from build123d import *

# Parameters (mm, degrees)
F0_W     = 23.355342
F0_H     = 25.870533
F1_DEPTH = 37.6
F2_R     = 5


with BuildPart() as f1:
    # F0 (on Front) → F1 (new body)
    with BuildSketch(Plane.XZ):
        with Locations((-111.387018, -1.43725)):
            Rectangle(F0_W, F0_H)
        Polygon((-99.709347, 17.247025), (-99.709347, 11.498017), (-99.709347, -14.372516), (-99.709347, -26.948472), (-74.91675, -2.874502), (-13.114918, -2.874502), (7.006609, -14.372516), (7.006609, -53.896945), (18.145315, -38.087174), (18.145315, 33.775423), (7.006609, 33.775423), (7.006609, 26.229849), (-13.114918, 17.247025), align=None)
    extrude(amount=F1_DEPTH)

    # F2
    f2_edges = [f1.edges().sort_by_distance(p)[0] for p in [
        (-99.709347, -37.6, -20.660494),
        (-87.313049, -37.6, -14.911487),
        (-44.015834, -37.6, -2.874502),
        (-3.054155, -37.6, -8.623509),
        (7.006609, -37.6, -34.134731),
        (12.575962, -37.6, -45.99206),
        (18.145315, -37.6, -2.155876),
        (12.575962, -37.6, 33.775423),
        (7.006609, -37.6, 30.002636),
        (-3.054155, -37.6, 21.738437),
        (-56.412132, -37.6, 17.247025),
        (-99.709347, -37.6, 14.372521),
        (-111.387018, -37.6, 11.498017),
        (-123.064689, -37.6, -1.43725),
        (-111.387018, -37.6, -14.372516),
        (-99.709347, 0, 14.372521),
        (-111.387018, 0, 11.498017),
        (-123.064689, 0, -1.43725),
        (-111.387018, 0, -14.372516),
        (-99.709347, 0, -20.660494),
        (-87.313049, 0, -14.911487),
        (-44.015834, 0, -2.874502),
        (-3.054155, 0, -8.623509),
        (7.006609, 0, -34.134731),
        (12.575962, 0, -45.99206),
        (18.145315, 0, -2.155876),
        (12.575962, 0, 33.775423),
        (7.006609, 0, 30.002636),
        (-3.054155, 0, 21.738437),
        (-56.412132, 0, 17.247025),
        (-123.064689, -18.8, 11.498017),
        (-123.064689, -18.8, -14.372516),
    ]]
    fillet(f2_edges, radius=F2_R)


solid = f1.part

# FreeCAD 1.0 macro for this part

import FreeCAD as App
import Part
import Sketcher
from FreeCAD import Vector
Q = App.Units.Quantity


def edges_at(feature, points):
    """Names of the edges that pass closest to the given points."""
    edges = feature.Shape.Edges
    near = lambda p: min(range(len(edges)), key=lambda i: edges[i].distToShape(Part.Vertex(*p))[0])
    return sorted({f"Edge{near(p) + 1}" for p in points})


def add_polygon(sketch, points):
    """Adds a closed chain of lines whose ends are joined by coincident constraints."""
    first, n = sketch.GeometryCount, len(points)
    for a, b in zip(points, points[1:] + points[:1]):
        sketch.addGeometry(Part.LineSegment(App.Vector(*a, 0), App.Vector(*b, 0)), False)
    for i in range(n):
        sketch.addConstraint(Sketcher.Constraint("Coincident", first + i, 2, first + (i + 1) % n, 1))

doc = App.newDocument("Part")
params = doc.addObject("Spreadsheet::Sheet", "Params")
for row, (alias, value) in enumerate([
    ("pad1_length", "37.6 mm"),
    ("fillet_radius", "5 mm"),
], start=1):
    params.set(f"A{row}", alias)
    params.set(f"B{row}", "=" + value)
    params.setAlias(f"B{row}", alias)

body = doc.addObject("PartDesign::Body", "Body")

sketch1 = body.newObject("Sketcher::SketchObject", "Sketch")
sketch1.AttachmentSupport = (doc.getObject("XZ_Plane"), [""])
sketch1.MapMode = "FlatFace"
add_polygon(sketch1, [(-123, 11), (-123, -14), (-100, -14), (-100, -27), (-75, -3), (-13, -3), (7, -14), (7, -54), (18, -38), (18, 34), (7, 34), (7, 26), (-13, 17), (-100, 17), (-100, 11)])
sketch1.addConstraint([
    Sketcher.Constraint("Vertical", 0),
    Sketcher.Constraint("Horizontal", 1),
    Sketcher.Constraint("Vertical", 2),
    Sketcher.Constraint("Horizontal", 4),
    Sketcher.Constraint("Vertical", 6),
    Sketcher.Constraint("Vertical", 8),
    Sketcher.Constraint("Horizontal", 9),
    Sketcher.Constraint("Vertical", 10),
    Sketcher.Constraint("Horizontal", 12),
    Sketcher.Constraint("Vertical", 13),
    Sketcher.Constraint("Horizontal", 14),
    Sketcher.Constraint("Horizontal", 1, 2, 5, 2),
    Sketcher.Constraint("Vertical", 6, 2, 9, 2),
    Sketcher.Constraint("Vertical", 4, 2, 11, 2),
    Sketcher.Constraint("Vertical", 2, 2, 12, 2),
    Sketcher.Constraint("DistanceX", 4, 1, 4, 2, Q("61.801832 mm")),
    Sketcher.Constraint("DistanceX", 12, 2, 12, 1, Q("86.594429 mm")),
    Sketcher.Constraint("DistanceY", 6, 2, 6, 1, Q("39.524429 mm")),
    Sketcher.Constraint("DistanceY", 13, 2, 13, 1, Q("5.749009 mm")),
    Sketcher.Constraint("DistanceX", 0, 2, 5, 2, Q("130.071298 mm")),
    Sketcher.Constraint("DistanceY", 7, 2, 2, 2, Q("11.138702 mm")),
    Sketcher.Constraint("DistanceY", 11, 2, 9, 2, Q("16.528398 mm")),
    Sketcher.Constraint("Distance", 5, Q("23.17499 mm")),
    Sketcher.Constraint("DistanceX", 1, 1, 1, 2, Q("23.355342 mm")),
    Sketcher.Constraint("DistanceX", 9, 2, 9, 1, Q("11.138706 mm")),
    Sketcher.Constraint("DistanceY", 0, 2, 0, 1, Q("25.870533 mm")),
    Sketcher.Constraint("DistanceY", 2, 2, 2, 1, Q("12.575955 mm")),
    Sketcher.Constraint("DistanceY", 10, 2, 10, 1, Q("7.545574 mm")),
    Sketcher.Constraint("DistanceX", 0, 2, -1, 1, Q("123.064689 mm")),
    Sketcher.Constraint("DistanceY", 2, 2, -1, 1, Q("26.948472 mm")),
])
pad1 = body.newObject("PartDesign::Pad", "Pad")
pad1.Profile = sketch1
pad1.setExpression("Length", "Params.pad1_length")
doc.recompute()

fillet = body.newObject("PartDesign::Fillet", "Fillet")
fillet.Base = (pad1, edges_at(pad1, [
    (-99.709, -37.6, -20.66),
    (-87.313, -37.6, -14.911),
    (-44.016, -37.6, -2.875),
    (-3.054, -37.6, -8.624),
    (7.007, -37.6, -34.135),
    (12.576, -37.6, -45.992),
    (18.145, -37.6, -2.156),
    (12.576, -37.6, 33.775),
    (7.007, -37.6, 30.003),
    (-3.054, -37.6, 21.738),
    (-56.412, -37.6, 17.247),
    (-99.709, -37.6, 14.373),
    (-111.387, -37.6, 11.498),
    (-123.065, -37.6, -1.437),
    (-111.387, -37.6, -14.373),
    (-99.709, 0, 14.373),
    (-111.387, 0, 11.498),
    (-123.065, 0, -1.437),
    (-111.387, 0, -14.373),
    (-99.709, 0, -20.66),
    (-87.313, 0, -14.911),
    (-44.016, 0, -2.875),
    (-3.054, 0, -8.624),
    (7.007, 0, -34.135),
    (12.576, 0, -45.992),
    (18.145, 0, -2.156),
    (12.576, 0, 33.775),
    (7.007, 0, 30.003),
    (-3.054, 0, 21.738),
    (-56.412, 0, 17.247),
    (-123.065, -18.8, 11.498),
    (-123.065, -18.8, -14.373),
]))
fillet.setExpression("Radius", "Params.fillet_radius")

doc.recompute()
